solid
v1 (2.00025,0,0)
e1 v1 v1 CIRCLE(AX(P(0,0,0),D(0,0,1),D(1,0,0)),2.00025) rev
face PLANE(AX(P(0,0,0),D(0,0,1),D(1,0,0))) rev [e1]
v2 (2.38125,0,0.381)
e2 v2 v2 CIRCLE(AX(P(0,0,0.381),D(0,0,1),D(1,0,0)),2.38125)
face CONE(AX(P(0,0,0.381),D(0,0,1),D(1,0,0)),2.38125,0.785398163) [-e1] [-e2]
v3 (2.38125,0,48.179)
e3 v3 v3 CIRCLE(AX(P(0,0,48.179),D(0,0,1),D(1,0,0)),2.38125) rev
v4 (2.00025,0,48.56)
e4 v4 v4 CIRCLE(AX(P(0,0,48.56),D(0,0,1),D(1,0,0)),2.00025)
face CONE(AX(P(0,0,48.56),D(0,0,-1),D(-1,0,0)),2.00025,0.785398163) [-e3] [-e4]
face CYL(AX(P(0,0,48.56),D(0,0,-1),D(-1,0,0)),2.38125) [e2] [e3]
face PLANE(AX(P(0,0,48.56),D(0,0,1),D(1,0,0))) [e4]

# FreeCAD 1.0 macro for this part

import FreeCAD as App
import Part
import Sketcher
from FreeCAD import Vector
Q = App.Units.Quantity


def edges_at(feature, points):
    """Names of the edges that pass closest to the given points."""
    edges = feature.Shape.Edges
    near = lambda p: min(range(len(edges)), key=lambda i: edges[i].distToShape(Part.Vertex(*p))[0])
    return sorted({f"Edge{near(p) + 1}" for p in points})

doc = App.newDocument("Part")
params = doc.addObject("Spreadsheet::Sheet", "Params")
for row, (alias, value) in enumerate([
    ("sketch1_diameter", "0.1875 in"),
    ("pad1_length", "48.56 mm"),
    ("chamfer_size", "0.015 in"),
], start=1):
    params.set(f"A{row}", alias)
    params.set(f"B{row}", "=" + value)
    params.setAlias(f"B{row}", alias)

body = doc.addObject("PartDesign::Body", "Body")

sketch1 = body.newObject("Sketcher::SketchObject", "Sketch")
sketch1.AttachmentSupport = (doc.getObject("XY_Plane"), [""])
sketch1.MapMode = "FlatFace"
sketch1.addGeometry(Part.Circle(Vector(0, 0, 0), Vector(0, 0, 1), 2.38125), False)
sketch1.addConstraint(Sketcher.Constraint("Coincident", 0, 3, -1, 1))
sketch1.addConstraint(Sketcher.Constraint("Diameter", 0, Q("0.1875 in")))
sketch1.setExpression("Constraints[1]", "Params.sketch1_diameter")
pad1 = body.newObject("PartDesign::Pad", "Pad")
pad1.Profile = sketch1
pad1.setExpression("Length", "Params.pad1_length")
doc.recompute()

chamfer = body.newObject("PartDesign::Chamfer", "Chamfer")
chamfer.Base = (pad1, edges_at(pad1, [(-2.381, 0, 0), (-2.381, 0, 48.56)]))
chamfer.setExpression("Size", "Params.chamfer_size")

doc.recompute()
